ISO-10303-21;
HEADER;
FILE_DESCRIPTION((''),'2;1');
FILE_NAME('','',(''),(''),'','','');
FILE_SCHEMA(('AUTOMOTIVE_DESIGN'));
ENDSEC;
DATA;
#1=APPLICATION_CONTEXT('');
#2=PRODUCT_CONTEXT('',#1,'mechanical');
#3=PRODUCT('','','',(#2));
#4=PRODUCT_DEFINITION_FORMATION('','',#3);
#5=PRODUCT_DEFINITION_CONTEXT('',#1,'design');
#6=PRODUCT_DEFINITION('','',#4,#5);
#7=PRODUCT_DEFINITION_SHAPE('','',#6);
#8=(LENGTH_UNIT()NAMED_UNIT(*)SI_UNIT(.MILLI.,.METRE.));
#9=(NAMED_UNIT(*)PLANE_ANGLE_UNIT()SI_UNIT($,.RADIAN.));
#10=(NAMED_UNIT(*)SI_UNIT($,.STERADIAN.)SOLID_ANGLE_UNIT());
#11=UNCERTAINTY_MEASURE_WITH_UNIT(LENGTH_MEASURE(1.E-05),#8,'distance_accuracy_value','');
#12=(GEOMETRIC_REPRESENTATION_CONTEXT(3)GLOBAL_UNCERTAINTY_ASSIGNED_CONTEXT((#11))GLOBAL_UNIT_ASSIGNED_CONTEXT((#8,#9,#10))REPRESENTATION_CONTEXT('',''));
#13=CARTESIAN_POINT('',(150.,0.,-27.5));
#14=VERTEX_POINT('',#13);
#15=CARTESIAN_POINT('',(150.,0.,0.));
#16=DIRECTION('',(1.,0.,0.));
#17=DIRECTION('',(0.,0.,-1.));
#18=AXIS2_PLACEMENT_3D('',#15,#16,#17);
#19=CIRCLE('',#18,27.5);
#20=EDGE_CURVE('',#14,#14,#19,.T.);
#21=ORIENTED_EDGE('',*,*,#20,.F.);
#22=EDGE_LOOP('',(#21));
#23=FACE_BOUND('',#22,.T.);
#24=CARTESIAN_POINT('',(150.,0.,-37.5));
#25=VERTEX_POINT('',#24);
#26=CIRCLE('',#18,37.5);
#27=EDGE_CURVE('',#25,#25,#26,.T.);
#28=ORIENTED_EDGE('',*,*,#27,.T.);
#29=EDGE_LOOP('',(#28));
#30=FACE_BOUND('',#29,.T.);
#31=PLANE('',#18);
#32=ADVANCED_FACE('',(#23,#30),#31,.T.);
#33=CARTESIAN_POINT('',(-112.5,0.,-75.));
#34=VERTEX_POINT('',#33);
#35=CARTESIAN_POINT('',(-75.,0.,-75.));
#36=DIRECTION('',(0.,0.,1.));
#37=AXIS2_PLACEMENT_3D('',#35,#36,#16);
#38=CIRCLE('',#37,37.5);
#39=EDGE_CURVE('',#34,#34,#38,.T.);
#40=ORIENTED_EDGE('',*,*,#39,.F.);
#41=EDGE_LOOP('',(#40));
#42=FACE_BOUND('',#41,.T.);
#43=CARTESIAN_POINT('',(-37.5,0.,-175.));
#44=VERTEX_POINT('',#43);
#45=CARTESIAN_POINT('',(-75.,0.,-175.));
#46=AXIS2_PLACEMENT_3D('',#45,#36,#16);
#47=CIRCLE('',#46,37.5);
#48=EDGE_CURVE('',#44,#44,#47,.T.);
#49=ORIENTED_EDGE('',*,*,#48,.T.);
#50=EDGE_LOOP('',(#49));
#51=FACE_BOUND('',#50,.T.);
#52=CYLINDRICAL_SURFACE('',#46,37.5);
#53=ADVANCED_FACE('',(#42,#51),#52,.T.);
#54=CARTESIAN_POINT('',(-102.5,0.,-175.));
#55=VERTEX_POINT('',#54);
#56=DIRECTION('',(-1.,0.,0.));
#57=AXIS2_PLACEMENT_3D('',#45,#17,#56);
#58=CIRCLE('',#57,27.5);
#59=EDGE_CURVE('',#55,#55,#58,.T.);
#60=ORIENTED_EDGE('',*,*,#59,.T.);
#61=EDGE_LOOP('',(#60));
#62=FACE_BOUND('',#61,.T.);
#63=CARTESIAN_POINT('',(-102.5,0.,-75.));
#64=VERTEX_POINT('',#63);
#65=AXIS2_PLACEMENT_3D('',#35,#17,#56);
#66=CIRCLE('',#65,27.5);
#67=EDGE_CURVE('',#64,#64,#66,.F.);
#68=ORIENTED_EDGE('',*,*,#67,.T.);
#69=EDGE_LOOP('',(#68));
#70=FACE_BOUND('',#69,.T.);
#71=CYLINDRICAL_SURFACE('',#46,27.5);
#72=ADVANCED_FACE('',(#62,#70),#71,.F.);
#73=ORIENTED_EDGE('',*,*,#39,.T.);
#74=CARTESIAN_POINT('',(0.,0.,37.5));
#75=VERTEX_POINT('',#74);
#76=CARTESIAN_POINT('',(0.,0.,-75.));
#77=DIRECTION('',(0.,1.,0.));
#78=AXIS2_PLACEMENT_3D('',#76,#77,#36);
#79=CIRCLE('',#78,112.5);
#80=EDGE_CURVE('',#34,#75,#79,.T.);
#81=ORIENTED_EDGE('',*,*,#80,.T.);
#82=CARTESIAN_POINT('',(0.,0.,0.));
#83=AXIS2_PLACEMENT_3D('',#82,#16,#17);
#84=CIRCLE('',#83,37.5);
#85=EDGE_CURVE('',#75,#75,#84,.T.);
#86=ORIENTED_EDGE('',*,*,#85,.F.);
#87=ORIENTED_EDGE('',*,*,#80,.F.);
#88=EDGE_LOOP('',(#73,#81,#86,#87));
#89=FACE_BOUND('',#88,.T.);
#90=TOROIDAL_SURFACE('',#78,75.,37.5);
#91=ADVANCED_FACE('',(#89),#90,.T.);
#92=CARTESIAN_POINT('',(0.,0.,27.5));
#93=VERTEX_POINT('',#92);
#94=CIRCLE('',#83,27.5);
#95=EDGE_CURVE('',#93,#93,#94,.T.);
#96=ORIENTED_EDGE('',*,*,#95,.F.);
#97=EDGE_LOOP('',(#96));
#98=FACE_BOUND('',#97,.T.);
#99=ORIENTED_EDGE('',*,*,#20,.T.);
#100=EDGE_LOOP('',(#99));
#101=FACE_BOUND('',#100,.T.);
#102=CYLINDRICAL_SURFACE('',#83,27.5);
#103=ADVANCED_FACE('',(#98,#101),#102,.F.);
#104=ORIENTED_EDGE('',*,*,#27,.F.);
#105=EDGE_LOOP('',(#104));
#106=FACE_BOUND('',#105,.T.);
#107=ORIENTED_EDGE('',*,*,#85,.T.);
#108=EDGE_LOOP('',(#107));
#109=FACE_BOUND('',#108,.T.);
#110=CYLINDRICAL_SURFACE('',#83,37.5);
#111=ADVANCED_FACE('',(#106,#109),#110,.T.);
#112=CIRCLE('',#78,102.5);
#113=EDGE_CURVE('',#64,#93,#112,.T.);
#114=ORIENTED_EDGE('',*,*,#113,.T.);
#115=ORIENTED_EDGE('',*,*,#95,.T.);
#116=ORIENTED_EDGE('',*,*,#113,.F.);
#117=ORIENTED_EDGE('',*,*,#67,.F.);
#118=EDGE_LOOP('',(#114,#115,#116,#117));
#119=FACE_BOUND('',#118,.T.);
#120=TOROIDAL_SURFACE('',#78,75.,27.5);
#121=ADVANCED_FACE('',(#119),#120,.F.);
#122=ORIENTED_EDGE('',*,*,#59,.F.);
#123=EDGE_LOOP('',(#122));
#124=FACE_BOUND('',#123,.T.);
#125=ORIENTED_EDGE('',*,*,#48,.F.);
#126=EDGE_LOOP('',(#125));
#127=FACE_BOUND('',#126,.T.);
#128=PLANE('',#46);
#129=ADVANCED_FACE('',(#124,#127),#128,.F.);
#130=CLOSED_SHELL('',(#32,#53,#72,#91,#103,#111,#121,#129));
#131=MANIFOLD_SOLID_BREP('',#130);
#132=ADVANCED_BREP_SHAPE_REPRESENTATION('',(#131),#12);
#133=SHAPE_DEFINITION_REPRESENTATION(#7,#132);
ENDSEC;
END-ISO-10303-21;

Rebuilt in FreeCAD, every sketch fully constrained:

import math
import FreeCAD as App
import Part
import Sketcher

V = App.Vector
Q = App.Units.Quantity


def faces_at(feature, points):
    """Names of the faces that lie closest to the given points."""
    faces = feature.Shape.Faces
    near = lambda p: min(range(len(faces)), key=lambda i: faces[i].distToShape(Part.Vertex(*p))[0])
    return sorted({f"Face{near(p) + 1}" for p in points})

doc = App.newDocument("Part")
body = doc.addObject("PartDesign::Body", "Body")

# Sketch on YZ plane
sketch1 = body.newObject("Sketcher::SketchObject", "Sketch")
sketch1.AttachmentSupport = (doc.getObject("YZ_Plane"), [""])
sketch1.MapMode = "FlatFace"
sketch1.AttachmentOffset = App.Placement(V(0, 0, 150), App.Rotation())
sketch1.addGeometry(Part.Circle(V(0, 0, 0), V(0, 0, 1), 38), False)
sketch1.addConstraint([
    Sketcher.Constraint("Coincident", 0, 3, -1, 1),
    Sketcher.Constraint("Diameter", 0, Q("75 mm")),
])

# Sketch on XZ plane
sketch2 = body.newObject("Sketcher::SketchObject", "Sketch001")
sketch2.AttachmentSupport = (doc.getObject("XZ_Plane"), [""])
sketch2.MapMode = "FlatFace"
sketch2.addGeometry([
    Part.LineSegment(V(150, 0, 0), V(0, 0, 0)),
    Part.ArcOfCircle(Part.Circle(V(0, -75, 0), V(0, 0, 1), 75), math.radians(90), math.radians(180)),
    Part.LineSegment(V(-75, -75, 0), V(-75, -175, 0)),
], False)
sketch2.addConstraint([
    Sketcher.Constraint("Tangent", 0, 2, 1, 1),
    Sketcher.Constraint("Tangent", 1, 2, 2, 1),
    Sketcher.Constraint("Horizontal", 0),
    Sketcher.Constraint("Vertical", 2),
    Sketcher.Constraint("Coincident", 0, 2, -1, 1),
    Sketcher.Constraint("Radius", 1, Q("75 mm")),
    Sketcher.Constraint("DistanceX", 0, 2, 0, 1, Q("150 mm")),
    Sketcher.Constraint("DistanceY", 2, 2, 2, 1, Q("100 mm")),
])
doc.recompute()

additivepipe = body.newObject("PartDesign::AdditivePipe", "AdditivePipe")
additivepipe.Profile = sketch1
additivepipe.Spine = (sketch2, ["Edge1", "Edge2", "Edge3"])
doc.recompute()

thickness = body.newObject("PartDesign::Thickness", "Thickness")
thickness.Base = (additivepipe, faces_at(additivepipe, [(150, 0, 0)]))
thickness.Value = 10
thickness.Reversed = True
thickness.Join = "Intersection"

# Sketch on XY plane
sketch3 = body.newObject("Sketcher::SketchObject", "Sketch002")
sketch3.AttachmentSupport = (doc.getObject("XY_Plane"), [""])
sketch3.MapMode = "FlatFace"
sketch3.AttachmentOffset = App.Placement(V(0, 0, -175), App.Rotation())
sketch3.addGeometry(Part.Circle(V(-75, 0, 0), V(0, 0, 1), 28), False)
sketch3.addConstraint([
    Sketcher.Constraint("PointOnObject", 0, 3, -1),
    Sketcher.Constraint("Diameter", 0, Q("55 mm")),
    Sketcher.Constraint("DistanceX", 0, 3, -1, 1, Q("75 mm")),
])
pocket1 = body.newObject("PartDesign::Pocket", "Pocket")
pocket1.Profile = sketch3
pocket1.Type = "UpToFirst"
pocket1.Reversed = True

doc.recompute()
